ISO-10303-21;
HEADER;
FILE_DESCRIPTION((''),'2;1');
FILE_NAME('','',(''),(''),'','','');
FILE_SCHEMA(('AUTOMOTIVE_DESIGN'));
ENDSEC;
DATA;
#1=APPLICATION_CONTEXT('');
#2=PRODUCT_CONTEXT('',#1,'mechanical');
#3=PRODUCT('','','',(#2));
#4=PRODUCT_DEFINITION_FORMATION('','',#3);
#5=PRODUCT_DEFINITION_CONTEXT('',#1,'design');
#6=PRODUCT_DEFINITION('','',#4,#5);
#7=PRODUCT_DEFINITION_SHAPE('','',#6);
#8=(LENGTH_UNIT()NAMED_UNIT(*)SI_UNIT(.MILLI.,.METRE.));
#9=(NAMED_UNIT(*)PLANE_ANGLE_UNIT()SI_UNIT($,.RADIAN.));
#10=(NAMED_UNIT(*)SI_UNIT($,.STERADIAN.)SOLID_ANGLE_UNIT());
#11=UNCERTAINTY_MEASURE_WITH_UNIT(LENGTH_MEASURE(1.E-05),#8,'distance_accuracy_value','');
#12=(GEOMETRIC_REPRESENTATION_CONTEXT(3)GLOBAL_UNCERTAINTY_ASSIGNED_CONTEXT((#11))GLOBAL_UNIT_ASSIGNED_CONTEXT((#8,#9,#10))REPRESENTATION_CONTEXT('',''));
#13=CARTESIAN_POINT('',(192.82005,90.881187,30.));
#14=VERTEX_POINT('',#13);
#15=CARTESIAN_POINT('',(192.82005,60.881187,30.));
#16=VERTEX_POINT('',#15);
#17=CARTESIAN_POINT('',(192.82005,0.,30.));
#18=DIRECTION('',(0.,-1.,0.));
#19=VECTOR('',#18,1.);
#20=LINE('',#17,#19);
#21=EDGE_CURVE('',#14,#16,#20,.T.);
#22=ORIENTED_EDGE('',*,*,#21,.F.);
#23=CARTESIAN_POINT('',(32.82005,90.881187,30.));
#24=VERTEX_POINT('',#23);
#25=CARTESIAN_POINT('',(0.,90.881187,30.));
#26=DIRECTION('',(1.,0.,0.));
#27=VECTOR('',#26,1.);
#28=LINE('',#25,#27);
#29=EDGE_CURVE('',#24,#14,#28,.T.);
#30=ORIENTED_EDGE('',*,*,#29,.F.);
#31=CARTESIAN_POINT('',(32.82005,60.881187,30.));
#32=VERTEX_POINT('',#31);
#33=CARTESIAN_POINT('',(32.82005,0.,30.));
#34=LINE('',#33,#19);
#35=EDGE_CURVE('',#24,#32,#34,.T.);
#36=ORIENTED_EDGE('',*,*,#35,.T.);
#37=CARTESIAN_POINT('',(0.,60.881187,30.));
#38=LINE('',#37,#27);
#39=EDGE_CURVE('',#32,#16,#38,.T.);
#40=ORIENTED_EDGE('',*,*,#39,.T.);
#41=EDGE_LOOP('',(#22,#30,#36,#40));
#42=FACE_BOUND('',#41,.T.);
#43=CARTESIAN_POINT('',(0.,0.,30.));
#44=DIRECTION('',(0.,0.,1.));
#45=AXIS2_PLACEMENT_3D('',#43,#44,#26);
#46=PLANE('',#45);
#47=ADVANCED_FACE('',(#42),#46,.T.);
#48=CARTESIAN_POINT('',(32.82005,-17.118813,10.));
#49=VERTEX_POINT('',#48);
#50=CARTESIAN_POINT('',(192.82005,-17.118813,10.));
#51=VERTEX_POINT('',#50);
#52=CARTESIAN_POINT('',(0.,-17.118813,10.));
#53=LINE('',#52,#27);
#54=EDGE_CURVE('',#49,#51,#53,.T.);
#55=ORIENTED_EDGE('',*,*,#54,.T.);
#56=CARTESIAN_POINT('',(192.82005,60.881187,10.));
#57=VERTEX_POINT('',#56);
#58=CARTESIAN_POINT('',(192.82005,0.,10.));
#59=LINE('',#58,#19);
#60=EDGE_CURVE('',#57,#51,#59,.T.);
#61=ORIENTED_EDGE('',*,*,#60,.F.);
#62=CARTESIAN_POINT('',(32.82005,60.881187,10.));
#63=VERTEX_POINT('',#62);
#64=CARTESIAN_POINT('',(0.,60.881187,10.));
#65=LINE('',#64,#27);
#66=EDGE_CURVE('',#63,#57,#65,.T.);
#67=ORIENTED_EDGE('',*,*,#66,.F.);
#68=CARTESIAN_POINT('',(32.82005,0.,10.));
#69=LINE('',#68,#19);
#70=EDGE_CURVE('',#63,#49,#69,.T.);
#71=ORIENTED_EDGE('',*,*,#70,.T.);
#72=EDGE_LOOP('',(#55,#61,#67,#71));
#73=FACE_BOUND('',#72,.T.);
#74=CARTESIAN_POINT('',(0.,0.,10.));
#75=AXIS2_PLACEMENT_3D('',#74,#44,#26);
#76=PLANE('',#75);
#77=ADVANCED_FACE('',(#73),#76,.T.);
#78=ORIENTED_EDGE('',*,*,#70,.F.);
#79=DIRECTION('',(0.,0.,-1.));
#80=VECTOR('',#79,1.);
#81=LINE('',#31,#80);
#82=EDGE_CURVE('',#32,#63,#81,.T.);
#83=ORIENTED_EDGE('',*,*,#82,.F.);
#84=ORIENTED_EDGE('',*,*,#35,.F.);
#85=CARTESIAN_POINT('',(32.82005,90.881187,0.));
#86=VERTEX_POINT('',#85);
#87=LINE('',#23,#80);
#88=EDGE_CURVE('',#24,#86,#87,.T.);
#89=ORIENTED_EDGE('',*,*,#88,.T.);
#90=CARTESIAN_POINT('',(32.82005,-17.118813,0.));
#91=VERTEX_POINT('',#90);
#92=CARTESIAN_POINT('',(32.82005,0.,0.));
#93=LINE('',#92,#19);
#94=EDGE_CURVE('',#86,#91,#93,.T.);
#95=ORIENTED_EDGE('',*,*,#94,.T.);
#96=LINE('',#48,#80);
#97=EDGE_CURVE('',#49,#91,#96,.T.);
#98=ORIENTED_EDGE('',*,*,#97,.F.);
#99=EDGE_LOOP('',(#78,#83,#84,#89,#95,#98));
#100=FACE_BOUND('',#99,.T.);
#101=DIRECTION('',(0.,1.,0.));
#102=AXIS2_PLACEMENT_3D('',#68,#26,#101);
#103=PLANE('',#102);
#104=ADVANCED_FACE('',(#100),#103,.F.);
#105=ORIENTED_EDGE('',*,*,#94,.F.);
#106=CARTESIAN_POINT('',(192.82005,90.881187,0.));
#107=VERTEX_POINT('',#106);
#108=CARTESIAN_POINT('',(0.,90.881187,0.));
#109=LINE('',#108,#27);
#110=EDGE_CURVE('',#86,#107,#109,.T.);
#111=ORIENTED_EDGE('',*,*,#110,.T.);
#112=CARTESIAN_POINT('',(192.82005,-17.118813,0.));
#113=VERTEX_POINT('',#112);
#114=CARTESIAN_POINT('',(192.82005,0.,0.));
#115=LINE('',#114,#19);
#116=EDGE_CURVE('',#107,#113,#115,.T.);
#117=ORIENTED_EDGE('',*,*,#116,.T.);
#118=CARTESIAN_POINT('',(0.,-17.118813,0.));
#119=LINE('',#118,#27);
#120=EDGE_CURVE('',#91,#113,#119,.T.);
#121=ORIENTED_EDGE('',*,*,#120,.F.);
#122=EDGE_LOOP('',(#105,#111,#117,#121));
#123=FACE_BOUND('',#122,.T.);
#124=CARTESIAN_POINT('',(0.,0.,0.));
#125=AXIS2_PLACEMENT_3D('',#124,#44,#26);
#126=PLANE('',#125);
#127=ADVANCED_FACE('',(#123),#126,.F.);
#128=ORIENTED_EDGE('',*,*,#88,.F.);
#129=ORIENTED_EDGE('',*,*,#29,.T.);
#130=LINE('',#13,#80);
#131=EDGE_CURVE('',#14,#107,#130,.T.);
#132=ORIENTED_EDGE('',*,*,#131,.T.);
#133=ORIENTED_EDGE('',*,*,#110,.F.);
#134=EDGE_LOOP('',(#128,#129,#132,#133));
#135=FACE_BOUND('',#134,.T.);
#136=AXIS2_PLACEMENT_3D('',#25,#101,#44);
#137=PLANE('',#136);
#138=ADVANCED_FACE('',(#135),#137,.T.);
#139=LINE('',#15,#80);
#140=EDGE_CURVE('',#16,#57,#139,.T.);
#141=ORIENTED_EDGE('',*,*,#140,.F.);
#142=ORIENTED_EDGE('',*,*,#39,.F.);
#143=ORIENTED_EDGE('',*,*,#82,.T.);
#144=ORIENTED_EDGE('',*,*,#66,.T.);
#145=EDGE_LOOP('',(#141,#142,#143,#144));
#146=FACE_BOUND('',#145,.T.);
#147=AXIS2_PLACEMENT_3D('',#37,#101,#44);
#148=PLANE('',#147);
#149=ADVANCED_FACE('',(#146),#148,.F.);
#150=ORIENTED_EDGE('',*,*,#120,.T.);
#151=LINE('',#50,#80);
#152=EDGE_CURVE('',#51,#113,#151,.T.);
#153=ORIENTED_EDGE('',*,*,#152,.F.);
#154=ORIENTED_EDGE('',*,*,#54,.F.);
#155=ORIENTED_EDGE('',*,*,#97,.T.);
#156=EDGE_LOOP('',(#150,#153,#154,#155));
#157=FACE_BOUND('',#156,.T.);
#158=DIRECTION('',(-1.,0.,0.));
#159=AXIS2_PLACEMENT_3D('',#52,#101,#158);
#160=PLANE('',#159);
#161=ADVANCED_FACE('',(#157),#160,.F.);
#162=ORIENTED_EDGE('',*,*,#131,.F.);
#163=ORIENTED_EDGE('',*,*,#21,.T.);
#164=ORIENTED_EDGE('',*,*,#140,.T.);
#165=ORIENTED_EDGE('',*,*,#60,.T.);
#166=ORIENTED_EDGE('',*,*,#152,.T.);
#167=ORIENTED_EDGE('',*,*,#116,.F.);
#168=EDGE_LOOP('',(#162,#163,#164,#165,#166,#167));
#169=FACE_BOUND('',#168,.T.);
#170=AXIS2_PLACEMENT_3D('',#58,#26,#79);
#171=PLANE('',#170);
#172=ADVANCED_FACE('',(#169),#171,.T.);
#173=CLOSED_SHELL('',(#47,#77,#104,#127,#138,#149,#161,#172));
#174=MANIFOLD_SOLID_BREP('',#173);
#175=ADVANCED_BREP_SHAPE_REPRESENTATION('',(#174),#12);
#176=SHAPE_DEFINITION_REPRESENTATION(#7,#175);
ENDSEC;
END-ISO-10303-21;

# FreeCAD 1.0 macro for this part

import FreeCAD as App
import Part
import Sketcher
from FreeCAD import Vector

doc = App.newDocument("Part")
body = doc.addObject("PartDesign::Body", "Body")

# Sketch on XY plane
sketch1 = doc.addObject("Sketcher::SketchObject", "Sketch")
body.addObject(sketch1)
sketch1.AttachmentSupport = (doc.XY_Plane, [""])
sketch1.MapMode = "FlatFace"
sketch1.addGeometry(Part.LineSegment(Vector(33, 61, 0), Vector(33, -17, 0)), False)
sketch1.addGeometry(Part.LineSegment(Vector(33, -17, 0), Vector(193, -17, 0)), False)
sketch1.addGeometry(Part.LineSegment(Vector(193, -17, 0), Vector(193, 61, 0)), False)
sketch1.addGeometry(Part.LineSegment(Vector(193, 61, 0), Vector(33, 61, 0)), False)
sketch1.addConstraint(Sketcher.Constraint("Coincident", 0, 2, 1, 1))
sketch1.addConstraint(Sketcher.Constraint("Coincident", 1, 2, 2, 1))
sketch1.addConstraint(Sketcher.Constraint("Coincident", 2, 2, 3, 1))
sketch1.addConstraint(Sketcher.Constraint("Coincident", 3, 2, 0, 1))
sketch1.addConstraint(Sketcher.Constraint("Vertical", 0))
sketch1.addConstraint(Sketcher.Constraint("Horizontal", 1))
sketch1.addConstraint(Sketcher.Constraint("Vertical", 2))
sketch1.addConstraint(Sketcher.Constraint("Horizontal", 3))
sketch1.addConstraint(Sketcher.Constraint("DistanceX", 1, 1, 1, 2, 160.0))
sketch1.addConstraint(Sketcher.Constraint("DistanceY", 0, 2, 0, 1, 78.0))
sketch1.addConstraint(Sketcher.Constraint("DistanceX", -1, 1, 0, 2, 32.82005))
sketch1.addConstraint(Sketcher.Constraint("DistanceY", 0, 2, -1, 1, 17.118813))
pad1 = doc.addObject("PartDesign::Pad", "Pad")
body.addObject(pad1)
pad1.Profile = sketch1
pad1.Length = 10

# Sketch on XY plane
sketch2 = doc.addObject("Sketcher::SketchObject", "Sketch001")
body.addObject(sketch2)
sketch2.AttachmentSupport = (doc.XY_Plane, [""])
sketch2.MapMode = "FlatFace"
sketch2.addGeometry(Part.LineSegment(Vector(33, 91, 0), Vector(33, 61, 0)), False)
sketch2.addGeometry(Part.LineSegment(Vector(33, 61, 0), Vector(193, 61, 0)), False)
sketch2.addGeometry(Part.LineSegment(Vector(193, 61, 0), Vector(193, 91, 0)), False)
sketch2.addGeometry(Part.LineSegment(Vector(193, 91, 0), Vector(33, 91, 0)), False)
sketch2.addConstraint(Sketcher.Constraint("Coincident", 0, 2, 1, 1))
sketch2.addConstraint(Sketcher.Constraint("Coincident", 1, 2, 2, 1))
sketch2.addConstraint(Sketcher.Constraint("Coincident", 2, 2, 3, 1))
sketch2.addConstraint(Sketcher.Constraint("Coincident", 3, 2, 0, 1))
sketch2.addConstraint(Sketcher.Constraint("Vertical", 0))
sketch2.addConstraint(Sketcher.Constraint("Horizontal", 1))
sketch2.addConstraint(Sketcher.Constraint("Vertical", 2))
sketch2.addConstraint(Sketcher.Constraint("Horizontal", 3))
sketch2.addConstraint(Sketcher.Constraint("DistanceX", 1, 1, 1, 2, 160.0))
sketch2.addConstraint(Sketcher.Constraint("DistanceY", 0, 2, 0, 1, 30.0))
sketch2.addConstraint(Sketcher.Constraint("DistanceX", -1, 1, 0, 2, 32.82005))
sketch2.addConstraint(Sketcher.Constraint("DistanceY", -1, 1, 0, 2, 60.881187))
pad2 = doc.addObject("PartDesign::Pad", "Pad001")
body.addObject(pad2)
pad2.Profile = sketch2
pad2.Length = 30

doc.recompute()
